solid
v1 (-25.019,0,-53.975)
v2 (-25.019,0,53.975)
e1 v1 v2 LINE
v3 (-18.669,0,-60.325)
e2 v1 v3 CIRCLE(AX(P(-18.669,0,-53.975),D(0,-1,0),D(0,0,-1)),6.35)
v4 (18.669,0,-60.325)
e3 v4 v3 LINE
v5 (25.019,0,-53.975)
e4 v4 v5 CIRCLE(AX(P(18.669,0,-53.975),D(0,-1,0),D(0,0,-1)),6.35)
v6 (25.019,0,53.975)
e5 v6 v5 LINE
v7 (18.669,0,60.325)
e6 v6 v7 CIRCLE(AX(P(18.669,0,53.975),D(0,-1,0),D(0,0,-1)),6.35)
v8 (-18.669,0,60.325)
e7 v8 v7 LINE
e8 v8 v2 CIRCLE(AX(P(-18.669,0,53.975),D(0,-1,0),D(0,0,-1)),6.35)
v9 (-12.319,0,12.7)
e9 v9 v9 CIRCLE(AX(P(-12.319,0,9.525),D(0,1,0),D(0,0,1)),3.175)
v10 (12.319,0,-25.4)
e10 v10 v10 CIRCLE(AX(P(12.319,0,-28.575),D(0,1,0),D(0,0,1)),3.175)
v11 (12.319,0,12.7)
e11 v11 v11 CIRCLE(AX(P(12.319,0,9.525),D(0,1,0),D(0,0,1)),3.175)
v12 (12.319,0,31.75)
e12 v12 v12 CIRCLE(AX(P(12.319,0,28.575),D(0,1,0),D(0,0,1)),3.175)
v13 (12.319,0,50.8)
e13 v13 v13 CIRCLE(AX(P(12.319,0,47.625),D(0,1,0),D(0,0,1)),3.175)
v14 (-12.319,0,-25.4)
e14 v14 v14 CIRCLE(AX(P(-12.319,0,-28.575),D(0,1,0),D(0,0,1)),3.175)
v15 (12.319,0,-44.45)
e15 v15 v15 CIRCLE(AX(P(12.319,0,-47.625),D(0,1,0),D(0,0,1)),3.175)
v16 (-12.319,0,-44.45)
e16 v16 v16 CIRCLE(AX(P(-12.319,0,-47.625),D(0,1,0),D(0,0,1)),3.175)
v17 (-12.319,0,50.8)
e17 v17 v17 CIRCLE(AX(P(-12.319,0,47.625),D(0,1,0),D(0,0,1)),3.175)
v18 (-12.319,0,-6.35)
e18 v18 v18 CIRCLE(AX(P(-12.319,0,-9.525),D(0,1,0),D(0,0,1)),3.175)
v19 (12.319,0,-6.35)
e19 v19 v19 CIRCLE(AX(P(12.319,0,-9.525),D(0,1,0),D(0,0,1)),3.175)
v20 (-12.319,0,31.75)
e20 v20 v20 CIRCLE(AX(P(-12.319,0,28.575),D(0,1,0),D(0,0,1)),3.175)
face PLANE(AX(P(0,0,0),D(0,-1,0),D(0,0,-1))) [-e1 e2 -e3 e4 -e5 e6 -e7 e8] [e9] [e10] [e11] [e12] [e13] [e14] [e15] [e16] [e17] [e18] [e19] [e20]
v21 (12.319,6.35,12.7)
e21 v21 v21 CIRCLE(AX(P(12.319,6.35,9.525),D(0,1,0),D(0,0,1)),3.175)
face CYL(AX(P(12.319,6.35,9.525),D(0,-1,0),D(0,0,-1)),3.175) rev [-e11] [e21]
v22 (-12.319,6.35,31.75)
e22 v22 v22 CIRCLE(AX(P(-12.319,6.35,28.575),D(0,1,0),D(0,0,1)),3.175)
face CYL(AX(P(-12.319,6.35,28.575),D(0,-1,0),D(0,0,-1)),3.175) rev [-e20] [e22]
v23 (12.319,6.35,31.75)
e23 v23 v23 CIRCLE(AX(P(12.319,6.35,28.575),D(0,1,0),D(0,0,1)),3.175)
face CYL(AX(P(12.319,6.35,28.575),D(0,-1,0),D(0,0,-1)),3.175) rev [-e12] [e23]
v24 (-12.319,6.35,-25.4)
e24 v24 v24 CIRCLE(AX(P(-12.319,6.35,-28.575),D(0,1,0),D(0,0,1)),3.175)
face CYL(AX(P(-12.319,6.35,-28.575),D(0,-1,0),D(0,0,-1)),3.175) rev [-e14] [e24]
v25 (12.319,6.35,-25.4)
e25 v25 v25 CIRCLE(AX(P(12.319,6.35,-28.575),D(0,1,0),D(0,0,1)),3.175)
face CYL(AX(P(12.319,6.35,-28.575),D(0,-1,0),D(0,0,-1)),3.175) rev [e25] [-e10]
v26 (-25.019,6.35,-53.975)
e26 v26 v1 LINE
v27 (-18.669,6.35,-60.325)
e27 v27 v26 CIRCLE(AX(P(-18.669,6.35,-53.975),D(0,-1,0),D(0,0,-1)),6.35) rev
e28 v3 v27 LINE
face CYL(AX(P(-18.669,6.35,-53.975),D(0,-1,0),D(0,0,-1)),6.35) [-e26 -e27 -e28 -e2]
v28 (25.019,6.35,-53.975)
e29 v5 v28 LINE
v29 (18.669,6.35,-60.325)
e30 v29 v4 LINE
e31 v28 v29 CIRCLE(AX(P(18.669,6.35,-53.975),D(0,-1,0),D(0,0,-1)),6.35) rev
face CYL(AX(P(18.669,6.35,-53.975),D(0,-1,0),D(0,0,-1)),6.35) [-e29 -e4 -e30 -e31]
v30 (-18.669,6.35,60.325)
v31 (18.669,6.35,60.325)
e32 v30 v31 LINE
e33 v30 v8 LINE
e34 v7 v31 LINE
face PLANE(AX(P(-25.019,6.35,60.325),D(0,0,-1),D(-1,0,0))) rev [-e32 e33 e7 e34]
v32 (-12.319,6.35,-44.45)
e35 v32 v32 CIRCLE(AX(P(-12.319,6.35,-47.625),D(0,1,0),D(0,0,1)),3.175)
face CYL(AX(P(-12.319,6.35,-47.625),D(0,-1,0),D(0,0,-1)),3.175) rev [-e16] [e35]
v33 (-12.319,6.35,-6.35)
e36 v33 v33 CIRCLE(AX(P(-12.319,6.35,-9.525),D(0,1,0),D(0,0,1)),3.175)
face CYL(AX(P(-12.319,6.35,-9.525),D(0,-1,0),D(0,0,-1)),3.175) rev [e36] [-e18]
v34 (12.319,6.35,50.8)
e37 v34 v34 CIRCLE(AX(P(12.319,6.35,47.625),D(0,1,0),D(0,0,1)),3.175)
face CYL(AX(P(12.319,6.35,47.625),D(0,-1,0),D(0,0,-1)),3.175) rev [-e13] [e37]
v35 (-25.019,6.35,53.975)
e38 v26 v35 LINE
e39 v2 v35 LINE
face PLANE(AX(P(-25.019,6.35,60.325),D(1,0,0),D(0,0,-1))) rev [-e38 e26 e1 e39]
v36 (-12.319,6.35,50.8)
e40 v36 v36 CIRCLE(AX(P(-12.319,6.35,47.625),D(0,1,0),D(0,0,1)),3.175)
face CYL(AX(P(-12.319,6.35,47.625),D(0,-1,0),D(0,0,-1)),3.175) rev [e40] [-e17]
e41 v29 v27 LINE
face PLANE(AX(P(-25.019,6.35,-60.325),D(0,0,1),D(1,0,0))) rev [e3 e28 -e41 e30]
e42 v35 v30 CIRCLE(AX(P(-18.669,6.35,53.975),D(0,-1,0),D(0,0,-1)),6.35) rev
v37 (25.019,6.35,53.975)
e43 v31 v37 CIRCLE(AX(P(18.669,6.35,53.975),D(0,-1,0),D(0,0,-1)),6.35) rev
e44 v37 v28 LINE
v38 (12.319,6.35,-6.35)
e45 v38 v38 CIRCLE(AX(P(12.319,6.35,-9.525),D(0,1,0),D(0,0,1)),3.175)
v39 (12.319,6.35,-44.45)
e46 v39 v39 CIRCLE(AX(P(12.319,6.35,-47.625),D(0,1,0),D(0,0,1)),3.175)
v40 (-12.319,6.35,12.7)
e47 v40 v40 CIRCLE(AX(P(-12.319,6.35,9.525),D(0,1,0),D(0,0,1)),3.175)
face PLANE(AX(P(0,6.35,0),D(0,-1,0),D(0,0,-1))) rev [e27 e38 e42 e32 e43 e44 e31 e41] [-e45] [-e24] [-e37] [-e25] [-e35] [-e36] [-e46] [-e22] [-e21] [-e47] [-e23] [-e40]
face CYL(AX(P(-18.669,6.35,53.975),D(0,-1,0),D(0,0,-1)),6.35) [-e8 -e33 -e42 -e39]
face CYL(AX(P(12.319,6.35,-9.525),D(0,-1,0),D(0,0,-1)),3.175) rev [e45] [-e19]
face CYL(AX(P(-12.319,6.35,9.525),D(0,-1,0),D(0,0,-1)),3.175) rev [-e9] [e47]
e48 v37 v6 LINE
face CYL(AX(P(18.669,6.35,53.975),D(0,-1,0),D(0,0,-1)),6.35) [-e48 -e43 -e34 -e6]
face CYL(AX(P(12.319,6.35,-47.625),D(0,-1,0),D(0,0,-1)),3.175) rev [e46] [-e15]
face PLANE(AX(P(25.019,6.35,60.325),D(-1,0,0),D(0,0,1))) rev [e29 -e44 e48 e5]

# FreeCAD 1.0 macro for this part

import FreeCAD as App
import Part
import Sketcher

V = App.Vector
Q = App.Units.Quantity


def edges_at(feature, points):
    """Names of the edges that pass closest to the given points."""
    edges = feature.Shape.Edges
    near = lambda p: min(range(len(edges)), key=lambda i: edges[i].distToShape(Part.Vertex(*p))[0])
    return sorted({f"Edge{near(p) + 1}" for p in points})


def add_polygon(sketch, points):
    """Adds a closed chain of lines whose ends are joined by coincident constraints."""
    first, n = sketch.GeometryCount, len(points)
    for a, b in zip(points, points[1:] + points[:1]):
        sketch.addGeometry(Part.LineSegment(App.Vector(*a, 0), App.Vector(*b, 0)), False)
    for i in range(n):
        sketch.addConstraint(Sketcher.Constraint("Coincident", first + i, 2, first + (i + 1) % n, 1))

doc = App.newDocument("Part")
params = doc.addObject("Spreadsheet::Sheet", "Params")
for row, (alias, value) in enumerate([
    ("sketch1_diameter", "0.25 in"),
    ("sketch1_width", "1.97 in"),
    ("sketch1_height", "4.75 in"),
    ("pad1_length", "0.25 in"),
    ("fillet_radius", "0.25 in"),
], start=1):
    params.set(f"A{row}", alias)
    params.set(f"B{row}", "=" + value)
    params.setAlias(f"B{row}", alias)

body = doc.addObject("PartDesign::Body", "Body")

sketch1 = body.newObject("Sketcher::SketchObject", "Sketch")
sketch1.AttachmentSupport = (doc.getObject("XZ_Plane"), [""])
sketch1.MapMode = "FlatFace"
add_polygon(sketch1, [(-25, -60.3), (-25, 60.3), (25, 60.3), (25, -60.3)])
sketch1.addGeometry(Part.Circle(V(-12.3, 47.6, 0), V(0, 0, 1), 3.2), False)
sketch1.addGeometry(Part.Circle(V(-12.3, 28.6, 0), V(0, 0, 1), 3.2), False)
sketch1.addGeometry(Part.Circle(V(-12.3, 9.5, 0), V(0, 0, 1), 3.2), False)
sketch1.addGeometry(Part.Circle(V(12.3, 47.6, 0), V(0, 0, 1), 3.2), False)
sketch1.addGeometry(Part.Circle(V(12.3, 28.6, 0), V(0, 0, 1), 3.2), False)
sketch1.addGeometry(Part.Circle(V(12.3, 9.5, 0), V(0, 0, 1), 3.2), False)
sketch1.addGeometry(Part.Circle(V(-12.3, -9.5, 0), V(0, 0, 1), 3.2), False)
sketch1.addGeometry(Part.Circle(V(-12.3, -28.6, 0), V(0, 0, 1), 3.2), False)
sketch1.addGeometry(Part.Circle(V(-12.3, -47.6, 0), V(0, 0, 1), 3.2), False)
sketch1.addGeometry(Part.Circle(V(12.3, -9.5, 0), V(0, 0, 1), 3.2), False)
sketch1.addGeometry(Part.Circle(V(12.3, -28.6, 0), V(0, 0, 1), 3.2), False)
sketch1.addGeometry(Part.Circle(V(12.3, -47.6, 0), V(0, 0, 1), 3.2), False)
sketch1.addConstraint(Sketcher.Constraint("Vertical", 0))
sketch1.addConstraint(Sketcher.Constraint("Horizontal", 1))
sketch1.addConstraint(Sketcher.Constraint("Vertical", 2))
sketch1.addConstraint(Sketcher.Constraint("Horizontal", 3))
sketch1.addConstraint(Sketcher.Constraint("Equal", 4, 5))
sketch1.addConstraint(Sketcher.Constraint("Equal", 5, 6))
sketch1.addConstraint(Sketcher.Constraint("Equal", 6, 7))
sketch1.addConstraint(Sketcher.Constraint("Equal", 7, 8))
sketch1.addConstraint(Sketcher.Constraint("Equal", 8, 9))
sketch1.addConstraint(Sketcher.Constraint("Equal", 9, 10))
sketch1.addConstraint(Sketcher.Constraint("Equal", 10, 11))
sketch1.addConstraint(Sketcher.Constraint("Equal", 11, 12))
sketch1.addConstraint(Sketcher.Constraint("Equal", 12, 13))
sketch1.addConstraint(Sketcher.Constraint("Equal", 13, 14))
sketch1.addConstraint(Sketcher.Constraint("Equal", 14, 15))
sketch1.addConstraint(Sketcher.Constraint("Symmetric", 9, 3, 10, 3, -1, 1))
sketch1.addConstraint(Sketcher.Constraint("Symmetric", 8, 3, 11, 3, -1, 1))
sketch1.addConstraint(Sketcher.Constraint("Symmetric", 7, 3, 12, 3, -1, 1))
sketch1.addConstraint(Sketcher.Constraint("Symmetric", 6, 3, 13, 3, -1, 1))
sketch1.addConstraint(Sketcher.Constraint("Symmetric", 5, 3, 14, 3, -1, 1))
sketch1.addConstraint(Sketcher.Constraint("Symmetric", 4, 3, 15, 3, -1, 1))
sketch1.addConstraint(Sketcher.Constraint("Symmetric", 0, 2, 2, 2, -1, 1))
sketch1.addConstraint(Sketcher.Constraint("Symmetric", 4, 3, 7, 3, -2))
sketch1.addConstraint(Sketcher.Constraint("Symmetric", 5, 3, 8, 3, -2))
sketch1.addConstraint(Sketcher.Constraint("Symmetric", 6, 3, 9, 3, -2))
sketch1.addConstraint(Sketcher.Constraint("Vertical", 4, 3, 5, 3))
sketch1.addConstraint(Sketcher.Constraint("Vertical", 5, 3, 6, 3))
sketch1.addConstraint(Sketcher.Constraint("Diameter", 4, Q("0.25 in")))
sketch1.addConstraint(Sketcher.Constraint("DistanceY", 12, 3, 5, 3, Q("3 in")))
sketch1.addConstraint(Sketcher.Constraint("DistanceY", 6, 3, 0, 2, Q("2 in")))
sketch1.addConstraint(Sketcher.Constraint("DistanceX", 1, 1, 1, 2, Q("1.97 in")))
sketch1.addConstraint(Sketcher.Constraint("DistanceY", 0, 1, 0, 2, Q("4.75 in")))
sketch1.addConstraint(Sketcher.Constraint("DistanceY", 6, 3, 4, 3, Q("1.5 in")))
sketch1.addConstraint(Sketcher.Constraint("DistanceX", 0, 2, 4, 3, Q("0.5 in")))
sketch1.setExpression("Constraints[31]", "Params.sketch1_diameter")
sketch1.setExpression("Constraints[34]", "Params.sketch1_width")
sketch1.setExpression("Constraints[35]", "Params.sketch1_height")
pad1 = body.newObject("PartDesign::Pad", "Pad")
pad1.Profile = sketch1
pad1.setExpression("Length", "Params.pad1_length")
pad1.Reversed = True
doc.recompute()

fillet = body.newObject("PartDesign::Fillet", "Fillet")
fillet.Base = (pad1, edges_at(pad1, [
    (25.019, 3.175, 60.325),
    (-25.019, 3.175, 60.325),
    (-25.019, 3.175, -60.325),
    (25.019, 3.175, -60.325),
]))
fillet.setExpression("Radius", "Params.fillet_radius")

doc.recompute()
